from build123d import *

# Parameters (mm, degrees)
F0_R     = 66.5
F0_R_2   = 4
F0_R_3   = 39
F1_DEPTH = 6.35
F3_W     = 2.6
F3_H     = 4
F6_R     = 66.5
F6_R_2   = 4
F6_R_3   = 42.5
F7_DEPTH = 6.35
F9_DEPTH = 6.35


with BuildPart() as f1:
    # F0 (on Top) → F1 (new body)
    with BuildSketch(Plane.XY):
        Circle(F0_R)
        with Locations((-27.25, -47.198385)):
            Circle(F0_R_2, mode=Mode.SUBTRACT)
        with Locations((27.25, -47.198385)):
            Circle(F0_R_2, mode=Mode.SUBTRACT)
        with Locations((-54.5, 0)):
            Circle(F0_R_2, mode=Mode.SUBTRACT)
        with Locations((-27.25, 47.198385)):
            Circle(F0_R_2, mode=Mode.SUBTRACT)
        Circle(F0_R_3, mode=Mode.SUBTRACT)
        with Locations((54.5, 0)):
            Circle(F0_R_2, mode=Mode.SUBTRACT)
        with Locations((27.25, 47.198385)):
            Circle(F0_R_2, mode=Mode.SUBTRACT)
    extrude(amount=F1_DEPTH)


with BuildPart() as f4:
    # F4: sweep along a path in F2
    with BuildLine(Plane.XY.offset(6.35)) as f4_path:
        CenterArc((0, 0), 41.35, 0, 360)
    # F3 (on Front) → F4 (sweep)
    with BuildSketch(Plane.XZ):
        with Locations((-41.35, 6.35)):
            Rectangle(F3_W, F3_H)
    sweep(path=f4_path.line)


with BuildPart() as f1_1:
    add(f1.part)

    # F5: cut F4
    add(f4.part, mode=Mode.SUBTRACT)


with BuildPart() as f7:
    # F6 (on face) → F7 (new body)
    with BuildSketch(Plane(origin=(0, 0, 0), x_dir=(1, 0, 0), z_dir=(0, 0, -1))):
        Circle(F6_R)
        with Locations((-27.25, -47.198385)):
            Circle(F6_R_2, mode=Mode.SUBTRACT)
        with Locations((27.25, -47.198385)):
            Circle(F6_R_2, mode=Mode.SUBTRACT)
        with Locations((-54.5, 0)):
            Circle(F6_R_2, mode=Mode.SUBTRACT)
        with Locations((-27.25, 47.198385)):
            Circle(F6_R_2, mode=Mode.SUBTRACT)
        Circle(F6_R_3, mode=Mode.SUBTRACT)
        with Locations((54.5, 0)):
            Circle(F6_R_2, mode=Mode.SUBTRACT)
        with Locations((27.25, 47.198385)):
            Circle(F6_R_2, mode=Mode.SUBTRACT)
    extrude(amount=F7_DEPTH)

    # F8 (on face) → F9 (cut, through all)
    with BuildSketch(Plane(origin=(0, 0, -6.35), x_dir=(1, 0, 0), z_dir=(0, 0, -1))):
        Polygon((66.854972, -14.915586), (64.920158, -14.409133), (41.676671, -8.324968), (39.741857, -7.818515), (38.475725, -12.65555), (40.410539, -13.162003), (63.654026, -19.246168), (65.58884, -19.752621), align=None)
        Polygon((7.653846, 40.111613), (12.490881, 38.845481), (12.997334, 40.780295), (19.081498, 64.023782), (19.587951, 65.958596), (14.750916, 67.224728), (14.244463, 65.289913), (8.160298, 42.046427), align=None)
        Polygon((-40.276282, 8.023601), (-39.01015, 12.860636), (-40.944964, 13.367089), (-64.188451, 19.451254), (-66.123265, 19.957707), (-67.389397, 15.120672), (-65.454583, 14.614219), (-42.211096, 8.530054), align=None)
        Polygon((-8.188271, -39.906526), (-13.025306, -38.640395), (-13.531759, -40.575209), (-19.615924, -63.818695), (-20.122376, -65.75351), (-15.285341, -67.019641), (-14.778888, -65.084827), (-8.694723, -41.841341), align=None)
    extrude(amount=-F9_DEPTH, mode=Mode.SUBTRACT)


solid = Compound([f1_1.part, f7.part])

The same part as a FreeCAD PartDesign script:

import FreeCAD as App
import Part
import Sketcher
from FreeCAD import Vector


def add_polygon(sketch, points):
    """Adds a closed chain of lines whose ends are joined by coincident constraints."""
    first, n = sketch.GeometryCount, len(points)
    for a, b in zip(points, points[1:] + points[:1]):
        sketch.addGeometry(Part.LineSegment(App.Vector(*a, 0), App.Vector(*b, 0)), False)
    for i in range(n):
        sketch.addConstraint(Sketcher.Constraint("Coincident", first + i, 2, first + (i + 1) % n, 1))

doc = App.newDocument("Part")
body = doc.addObject("PartDesign::Body", "Body")

# Sketch on XY plane
sketch1 = body.newObject("Sketcher::SketchObject", "Sketch")
sketch1.AttachmentSupport = (doc.getObject("XY_Plane"), [""])
sketch1.MapMode = "FlatFace"
sketch1.addGeometry([
    Part.Circle(Vector(0, 0, 0), Vector(0, 0, 1), 66.5),  # 0
    Part.Circle(Vector(-27.2, -47.2, 0), Vector(0, 0, 1), 4),  # 1
    Part.Circle(Vector(27.2, -47.2, 0), Vector(0, 0, 1), 4),  # 2
    Part.Circle(Vector(-54.5, 0, 0), Vector(0, 0, 1), 4),  # 3
    Part.Circle(Vector(-27.2, 47.2, 0), Vector(0, 0, 1), 4),  # 4
    Part.Circle(Vector(0, 0, 0), Vector(0, 0, 1), 39),  # 5
    Part.Circle(Vector(54.5, 0, 0), Vector(0, 0, 1), 4),  # 6
    Part.Circle(Vector(27.2, 47.2, 0), Vector(0, 0, 1), 4),  # 7
], False)
sketch1.addConstraint([
    Sketcher.Constraint("Coincident", 0, 3, -1, 1),
    Sketcher.Constraint("Coincident", 5, 3, -1, 1),
    Sketcher.Constraint("Equal", 1, 2),
    Sketcher.Constraint("Equal", 2, 3),
    Sketcher.Constraint("Equal", 3, 4),
    Sketcher.Constraint("Equal", 4, 6),
    Sketcher.Constraint("Equal", 6, 7),
    Sketcher.Constraint("Symmetric", 2, 3, 4, 3, -1, 1),
    Sketcher.Constraint("Symmetric", 3, 3, 6, 3, -1, 1),
    Sketcher.Constraint("Symmetric", 1, 3, 7, 3, -1, 1),
    Sketcher.Constraint("Symmetric", 1, 3, 2, 3, -2),
    Sketcher.Constraint("PointOnObject", 3, 3, -1),
    Sketcher.Constraint("Diameter", 0, 133.0),
    Sketcher.Constraint("Diameter", 1, 8.0),
    Sketcher.Constraint("Diameter", 5, 78.0),
    Sketcher.Constraint("DistanceX", 3, 3, -1, 1, 54.5),
    Sketcher.Constraint("DistanceX", 1, 3, 2, 3, 54.5),
    Sketcher.Constraint("DistanceY", 1, 3, 4, 3, 94.39677),
])
pad1 = body.newObject("PartDesign::Pad", "Pad")
pad1.Profile = sketch1
pad1.Length = 6.35
body2 = doc.addObject("PartDesign::Body", "Body001")

# Sketch on XZ plane
sketch2 = body2.newObject("Sketcher::SketchObject", "Sketch001")
sketch2.AttachmentSupport = (doc.getObject("XZ_Plane001"), [""])
sketch2.MapMode = "FlatFace"
add_polygon(sketch2, [(-42.6, 8.3), (-42.6, 4.3), (-40, 4.3), (-40, 8.3)])  # lines 0-3
sketch2.addConstraint([
    Sketcher.Constraint("Vertical", 0),
    Sketcher.Constraint("Horizontal", 1),
    Sketcher.Constraint("Vertical", 2),
    Sketcher.Constraint("Horizontal", 3),
    Sketcher.Constraint("DistanceY", 0, 2, 0, 1, 4.0),
    Sketcher.Constraint("DistanceX", 1, 1, 1, 2, 2.6),
    Sketcher.Constraint("DistanceX", 0, 2, -1, 1, 42.65),
    Sketcher.Constraint("DistanceY", -1, 1, 0, 2, 4.35),
])

# Sketch on XY plane
sketch3 = body2.newObject("Sketcher::SketchObject", "Sketch002")
sketch3.AttachmentSupport = (doc.getObject("XY_Plane001"), [""])
sketch3.MapMode = "FlatFace"
sketch3.AttachmentOffset = App.Placement(Vector(0, 0, 6.35), App.Rotation())
sketch3.addGeometry(Part.Circle(Vector(0, 0, 0), Vector(0, 0, 1), 41), False)
sketch3.addConstraint([
    Sketcher.Constraint("Coincident", 0, 3, -1, 1),
    Sketcher.Constraint("Diameter", 0, 82.7),
])
doc.recompute()

additivepipe = body2.newObject("PartDesign::AdditivePipe", "AdditivePipe")
additivepipe.Profile = sketch2
additivepipe.Spine = (sketch3, ["Edge1"])
doc.recompute()

boolean = body.newObject("PartDesign::Boolean", "Boolean")
boolean.Type = "Cut"
boolean.addObjects([body2])
body3 = doc.addObject("PartDesign::Body", "Body002")
body3.AllowCompound = True

# Sketch on XY plane
sketch4 = body3.newObject("Sketcher::SketchObject", "Sketch003")
sketch4.AttachmentSupport = (doc.getObject("XY_Plane002"), [""])
sketch4.MapMode = "FlatFace"
sketch4.addGeometry([
    Part.Circle(Vector(0, 0, 0), Vector(0, 0, 1), 66.5),  # 0
    Part.Circle(Vector(-27.2, 47.2, 0), Vector(0, 0, 1), 4),  # 1
    Part.Circle(Vector(27.2, 47.2, 0), Vector(0, 0, 1), 4),  # 2
    Part.Circle(Vector(-54.5, 0, 0), Vector(0, 0, 1), 4),  # 3
    Part.Circle(Vector(-27.2, -47.2, 0), Vector(0, 0, 1), 4),  # 4
    Part.Circle(Vector(0, 0, 0), Vector(0, 0, 1), 42.5),  # 5
    Part.Circle(Vector(54.5, 0, 0), Vector(0, 0, 1), 4),  # 6
    Part.Circle(Vector(27.2, -47.2, 0), Vector(0, 0, 1), 4),  # 7
], False)
sketch4.addConstraint([
    Sketcher.Constraint("Coincident", 0, 3, -1, 1),
    Sketcher.Constraint("Coincident", 5, 3, -1, 1),
    Sketcher.Constraint("Equal", 1, 2),
    Sketcher.Constraint("Equal", 2, 3),
    Sketcher.Constraint("Equal", 3, 4),
    Sketcher.Constraint("Equal", 4, 6),
    Sketcher.Constraint("Equal", 6, 7),
    Sketcher.Constraint("Symmetric", 2, 3, 4, 3, -1, 1),
    Sketcher.Constraint("Symmetric", 3, 3, 6, 3, -1, 1),
    Sketcher.Constraint("Symmetric", 1, 3, 7, 3, -1, 1),
    Sketcher.Constraint("Symmetric", 1, 3, 2, 3, -2),
    Sketcher.Constraint("PointOnObject", 3, 3, -1),
    Sketcher.Constraint("Diameter", 0, 133.0),
    Sketcher.Constraint("Diameter", 1, 8.0),
    Sketcher.Constraint("Diameter", 5, 85.0),
    Sketcher.Constraint("DistanceX", 3, 3, -1, 1, 54.5),
    Sketcher.Constraint("DistanceX", 1, 3, 2, 3, 54.5),
    Sketcher.Constraint("DistanceY", 4, 3, 1, 3, 94.39677),
])
pad2 = body3.newObject("PartDesign::Pad", "Pad001")
pad2.Profile = sketch4
pad2.Length = 6.35
pad2.Reversed = True

# Sketch on XY plane
sketch5 = body3.newObject("Sketcher::SketchObject", "Sketch004")
sketch5.AttachmentSupport = (doc.getObject("XY_Plane002"), [""])
sketch5.MapMode = "FlatFace"
sketch5.AttachmentOffset = App.Placement(Vector(0, 0, -6.35), App.Rotation())
add_polygon(sketch5, [(66.9, 14.9), (64.9, 14.4), (41.7, 8.3), (39.7, 7.8), (38.5, 12.7), (40.4, 13.2), (63.7, 19.2), (65.6, 19.8)])  # lines 0-7
add_polygon(sketch5, [(7.7, -40.1), (12.5, -38.8), (13, -40.8), (19.1, -64), (19.6, -66), (14.8, -67.2), (14.2, -65.3), (8.2, -42)])  # lines 8-15
add_polygon(sketch5, [(-40.3, -8), (-39, -12.9), (-40.9, -13.4), (-64.2, -19.5), (-66.1, -20), (-67.4, -15.1), (-65.5, -14.6), (-42.2, -8.5)])  # lines 16-23
add_polygon(sketch5, [(-8.2, 39.9), (-13, 38.6), (-13.5, 40.6), (-19.6, 63.8), (-20.1, 65.8), (-15.3, 67), (-14.8, 65.1), (-8.7, 41.8)])  # lines 24-31
sketch5.addConstraint([
    Sketcher.Constraint("Parallel", 0, 1),
    Sketcher.Constraint("Parallel", 1, 2),
    Sketcher.Constraint("Perpendicular", 2, 3),
    Sketcher.Constraint("Perpendicular", 3, 4),
    Sketcher.Constraint("Parallel", 4, 5),
    Sketcher.Constraint("Parallel", 5, 6),
    Sketcher.Constraint("Perpendicular", 6, 7),
    Sketcher.Constraint("Perpendicular", 7, 8),
    Sketcher.Constraint("Perpendicular", 8, 9),
    Sketcher.Constraint("Parallel", 9, 10),
    Sketcher.Constraint("Parallel", 10, 11),
    Sketcher.Constraint("Perpendicular", 11, 12),
    Sketcher.Constraint("Perpendicular", 12, 13),
    Sketcher.Constraint("Parallel", 13, 14),
    Sketcher.Constraint("Parallel", 14, 15),
    Sketcher.Constraint("Parallel", 15, 16),
    Sketcher.Constraint("Perpendicular", 16, 17),
    Sketcher.Constraint("Parallel", 17, 18),
    Sketcher.Constraint("Parallel", 18, 19),
    Sketcher.Constraint("Perpendicular", 19, 20),
    Sketcher.Constraint("Perpendicular", 20, 21),
    Sketcher.Constraint("Parallel", 21, 22),
    Sketcher.Constraint("Parallel", 22, 23),
    Sketcher.Constraint("Parallel", 23, 24),
    Sketcher.Constraint("Perpendicular", 24, 25),
    Sketcher.Constraint("Parallel", 25, 26),
    Sketcher.Constraint("Parallel", 26, 27),
    Sketcher.Constraint("Perpendicular", 27, 28),
    Sketcher.Constraint("Perpendicular", 28, 29),
    Sketcher.Constraint("Parallel", 29, 30),
    Sketcher.Constraint("Parallel", 30, 31),
    Sketcher.Constraint("Equal", 0, 2),
    Sketcher.Constraint("Equal", 2, 4),
    Sketcher.Constraint("Equal", 1, 5),
    Sketcher.Constraint("Equal", 7, 8),
    Sketcher.Constraint("Equal", 6, 9),
    Sketcher.Constraint("Equal", 5, 10),
    Sketcher.Constraint("Equal", 9, 11),
    Sketcher.Constraint("Equal", 11, 13),
    Sketcher.Constraint("Equal", 10, 14),
    Sketcher.Constraint("Equal", 12, 16),
    Sketcher.Constraint("Equal", 15, 17),
    Sketcher.Constraint("Equal", 14, 18),
    Sketcher.Constraint("Equal", 17, 19),
    Sketcher.Constraint("Equal", 19, 21),
    Sketcher.Constraint("Equal", 18, 22),
    Sketcher.Constraint("Equal", 20, 24),
    Sketcher.Constraint("Equal", 23, 25),
    Sketcher.Constraint("Equal", 22, 26),
    Sketcher.Constraint("Equal", 25, 27),
    Sketcher.Constraint("Equal", 27, 29),
    Sketcher.Constraint("Equal", 26, 30),
    Sketcher.Constraint("Distance", 0, 2.0),
    Sketcher.Constraint("Distance", 3, 5.0),
    Sketcher.Constraint("DistanceX", -1, 1, 10, 2, 19.081498),
    Sketcher.Constraint("DistanceY", 23, 2, -1, 1, 8.023601),
    Sketcher.Constraint("DistanceX", 2, 2, 0, 2, 25.178301),
    Sketcher.Constraint("DistanceY", 1, 2, 5, 2, 10.9212),
    Sketcher.Constraint("DistanceX", -1, 1, 0, 2, 64.920158),
    Sketcher.Constraint("DistanceY", -1, 1, 3, 2, 12.65555),
    Sketcher.Constraint("DistanceY", 8, 2, -1, 1, 38.845481),
    Sketcher.Constraint("DistanceX", 16, 2, -1, 1, 39.01015),
    Sketcher.Constraint("DistanceX", 25, 2, -1, 1, 13.531759),
    Sketcher.Constraint("DistanceY", -1, 1, 25, 2, 40.575209),
])
pocket1 = body3.newObject("PartDesign::Pocket", "Pocket")
pocket1.Profile = sketch5
pocket1.Type = "ThroughAll"
pocket1.Reversed = True

doc.recompute()
